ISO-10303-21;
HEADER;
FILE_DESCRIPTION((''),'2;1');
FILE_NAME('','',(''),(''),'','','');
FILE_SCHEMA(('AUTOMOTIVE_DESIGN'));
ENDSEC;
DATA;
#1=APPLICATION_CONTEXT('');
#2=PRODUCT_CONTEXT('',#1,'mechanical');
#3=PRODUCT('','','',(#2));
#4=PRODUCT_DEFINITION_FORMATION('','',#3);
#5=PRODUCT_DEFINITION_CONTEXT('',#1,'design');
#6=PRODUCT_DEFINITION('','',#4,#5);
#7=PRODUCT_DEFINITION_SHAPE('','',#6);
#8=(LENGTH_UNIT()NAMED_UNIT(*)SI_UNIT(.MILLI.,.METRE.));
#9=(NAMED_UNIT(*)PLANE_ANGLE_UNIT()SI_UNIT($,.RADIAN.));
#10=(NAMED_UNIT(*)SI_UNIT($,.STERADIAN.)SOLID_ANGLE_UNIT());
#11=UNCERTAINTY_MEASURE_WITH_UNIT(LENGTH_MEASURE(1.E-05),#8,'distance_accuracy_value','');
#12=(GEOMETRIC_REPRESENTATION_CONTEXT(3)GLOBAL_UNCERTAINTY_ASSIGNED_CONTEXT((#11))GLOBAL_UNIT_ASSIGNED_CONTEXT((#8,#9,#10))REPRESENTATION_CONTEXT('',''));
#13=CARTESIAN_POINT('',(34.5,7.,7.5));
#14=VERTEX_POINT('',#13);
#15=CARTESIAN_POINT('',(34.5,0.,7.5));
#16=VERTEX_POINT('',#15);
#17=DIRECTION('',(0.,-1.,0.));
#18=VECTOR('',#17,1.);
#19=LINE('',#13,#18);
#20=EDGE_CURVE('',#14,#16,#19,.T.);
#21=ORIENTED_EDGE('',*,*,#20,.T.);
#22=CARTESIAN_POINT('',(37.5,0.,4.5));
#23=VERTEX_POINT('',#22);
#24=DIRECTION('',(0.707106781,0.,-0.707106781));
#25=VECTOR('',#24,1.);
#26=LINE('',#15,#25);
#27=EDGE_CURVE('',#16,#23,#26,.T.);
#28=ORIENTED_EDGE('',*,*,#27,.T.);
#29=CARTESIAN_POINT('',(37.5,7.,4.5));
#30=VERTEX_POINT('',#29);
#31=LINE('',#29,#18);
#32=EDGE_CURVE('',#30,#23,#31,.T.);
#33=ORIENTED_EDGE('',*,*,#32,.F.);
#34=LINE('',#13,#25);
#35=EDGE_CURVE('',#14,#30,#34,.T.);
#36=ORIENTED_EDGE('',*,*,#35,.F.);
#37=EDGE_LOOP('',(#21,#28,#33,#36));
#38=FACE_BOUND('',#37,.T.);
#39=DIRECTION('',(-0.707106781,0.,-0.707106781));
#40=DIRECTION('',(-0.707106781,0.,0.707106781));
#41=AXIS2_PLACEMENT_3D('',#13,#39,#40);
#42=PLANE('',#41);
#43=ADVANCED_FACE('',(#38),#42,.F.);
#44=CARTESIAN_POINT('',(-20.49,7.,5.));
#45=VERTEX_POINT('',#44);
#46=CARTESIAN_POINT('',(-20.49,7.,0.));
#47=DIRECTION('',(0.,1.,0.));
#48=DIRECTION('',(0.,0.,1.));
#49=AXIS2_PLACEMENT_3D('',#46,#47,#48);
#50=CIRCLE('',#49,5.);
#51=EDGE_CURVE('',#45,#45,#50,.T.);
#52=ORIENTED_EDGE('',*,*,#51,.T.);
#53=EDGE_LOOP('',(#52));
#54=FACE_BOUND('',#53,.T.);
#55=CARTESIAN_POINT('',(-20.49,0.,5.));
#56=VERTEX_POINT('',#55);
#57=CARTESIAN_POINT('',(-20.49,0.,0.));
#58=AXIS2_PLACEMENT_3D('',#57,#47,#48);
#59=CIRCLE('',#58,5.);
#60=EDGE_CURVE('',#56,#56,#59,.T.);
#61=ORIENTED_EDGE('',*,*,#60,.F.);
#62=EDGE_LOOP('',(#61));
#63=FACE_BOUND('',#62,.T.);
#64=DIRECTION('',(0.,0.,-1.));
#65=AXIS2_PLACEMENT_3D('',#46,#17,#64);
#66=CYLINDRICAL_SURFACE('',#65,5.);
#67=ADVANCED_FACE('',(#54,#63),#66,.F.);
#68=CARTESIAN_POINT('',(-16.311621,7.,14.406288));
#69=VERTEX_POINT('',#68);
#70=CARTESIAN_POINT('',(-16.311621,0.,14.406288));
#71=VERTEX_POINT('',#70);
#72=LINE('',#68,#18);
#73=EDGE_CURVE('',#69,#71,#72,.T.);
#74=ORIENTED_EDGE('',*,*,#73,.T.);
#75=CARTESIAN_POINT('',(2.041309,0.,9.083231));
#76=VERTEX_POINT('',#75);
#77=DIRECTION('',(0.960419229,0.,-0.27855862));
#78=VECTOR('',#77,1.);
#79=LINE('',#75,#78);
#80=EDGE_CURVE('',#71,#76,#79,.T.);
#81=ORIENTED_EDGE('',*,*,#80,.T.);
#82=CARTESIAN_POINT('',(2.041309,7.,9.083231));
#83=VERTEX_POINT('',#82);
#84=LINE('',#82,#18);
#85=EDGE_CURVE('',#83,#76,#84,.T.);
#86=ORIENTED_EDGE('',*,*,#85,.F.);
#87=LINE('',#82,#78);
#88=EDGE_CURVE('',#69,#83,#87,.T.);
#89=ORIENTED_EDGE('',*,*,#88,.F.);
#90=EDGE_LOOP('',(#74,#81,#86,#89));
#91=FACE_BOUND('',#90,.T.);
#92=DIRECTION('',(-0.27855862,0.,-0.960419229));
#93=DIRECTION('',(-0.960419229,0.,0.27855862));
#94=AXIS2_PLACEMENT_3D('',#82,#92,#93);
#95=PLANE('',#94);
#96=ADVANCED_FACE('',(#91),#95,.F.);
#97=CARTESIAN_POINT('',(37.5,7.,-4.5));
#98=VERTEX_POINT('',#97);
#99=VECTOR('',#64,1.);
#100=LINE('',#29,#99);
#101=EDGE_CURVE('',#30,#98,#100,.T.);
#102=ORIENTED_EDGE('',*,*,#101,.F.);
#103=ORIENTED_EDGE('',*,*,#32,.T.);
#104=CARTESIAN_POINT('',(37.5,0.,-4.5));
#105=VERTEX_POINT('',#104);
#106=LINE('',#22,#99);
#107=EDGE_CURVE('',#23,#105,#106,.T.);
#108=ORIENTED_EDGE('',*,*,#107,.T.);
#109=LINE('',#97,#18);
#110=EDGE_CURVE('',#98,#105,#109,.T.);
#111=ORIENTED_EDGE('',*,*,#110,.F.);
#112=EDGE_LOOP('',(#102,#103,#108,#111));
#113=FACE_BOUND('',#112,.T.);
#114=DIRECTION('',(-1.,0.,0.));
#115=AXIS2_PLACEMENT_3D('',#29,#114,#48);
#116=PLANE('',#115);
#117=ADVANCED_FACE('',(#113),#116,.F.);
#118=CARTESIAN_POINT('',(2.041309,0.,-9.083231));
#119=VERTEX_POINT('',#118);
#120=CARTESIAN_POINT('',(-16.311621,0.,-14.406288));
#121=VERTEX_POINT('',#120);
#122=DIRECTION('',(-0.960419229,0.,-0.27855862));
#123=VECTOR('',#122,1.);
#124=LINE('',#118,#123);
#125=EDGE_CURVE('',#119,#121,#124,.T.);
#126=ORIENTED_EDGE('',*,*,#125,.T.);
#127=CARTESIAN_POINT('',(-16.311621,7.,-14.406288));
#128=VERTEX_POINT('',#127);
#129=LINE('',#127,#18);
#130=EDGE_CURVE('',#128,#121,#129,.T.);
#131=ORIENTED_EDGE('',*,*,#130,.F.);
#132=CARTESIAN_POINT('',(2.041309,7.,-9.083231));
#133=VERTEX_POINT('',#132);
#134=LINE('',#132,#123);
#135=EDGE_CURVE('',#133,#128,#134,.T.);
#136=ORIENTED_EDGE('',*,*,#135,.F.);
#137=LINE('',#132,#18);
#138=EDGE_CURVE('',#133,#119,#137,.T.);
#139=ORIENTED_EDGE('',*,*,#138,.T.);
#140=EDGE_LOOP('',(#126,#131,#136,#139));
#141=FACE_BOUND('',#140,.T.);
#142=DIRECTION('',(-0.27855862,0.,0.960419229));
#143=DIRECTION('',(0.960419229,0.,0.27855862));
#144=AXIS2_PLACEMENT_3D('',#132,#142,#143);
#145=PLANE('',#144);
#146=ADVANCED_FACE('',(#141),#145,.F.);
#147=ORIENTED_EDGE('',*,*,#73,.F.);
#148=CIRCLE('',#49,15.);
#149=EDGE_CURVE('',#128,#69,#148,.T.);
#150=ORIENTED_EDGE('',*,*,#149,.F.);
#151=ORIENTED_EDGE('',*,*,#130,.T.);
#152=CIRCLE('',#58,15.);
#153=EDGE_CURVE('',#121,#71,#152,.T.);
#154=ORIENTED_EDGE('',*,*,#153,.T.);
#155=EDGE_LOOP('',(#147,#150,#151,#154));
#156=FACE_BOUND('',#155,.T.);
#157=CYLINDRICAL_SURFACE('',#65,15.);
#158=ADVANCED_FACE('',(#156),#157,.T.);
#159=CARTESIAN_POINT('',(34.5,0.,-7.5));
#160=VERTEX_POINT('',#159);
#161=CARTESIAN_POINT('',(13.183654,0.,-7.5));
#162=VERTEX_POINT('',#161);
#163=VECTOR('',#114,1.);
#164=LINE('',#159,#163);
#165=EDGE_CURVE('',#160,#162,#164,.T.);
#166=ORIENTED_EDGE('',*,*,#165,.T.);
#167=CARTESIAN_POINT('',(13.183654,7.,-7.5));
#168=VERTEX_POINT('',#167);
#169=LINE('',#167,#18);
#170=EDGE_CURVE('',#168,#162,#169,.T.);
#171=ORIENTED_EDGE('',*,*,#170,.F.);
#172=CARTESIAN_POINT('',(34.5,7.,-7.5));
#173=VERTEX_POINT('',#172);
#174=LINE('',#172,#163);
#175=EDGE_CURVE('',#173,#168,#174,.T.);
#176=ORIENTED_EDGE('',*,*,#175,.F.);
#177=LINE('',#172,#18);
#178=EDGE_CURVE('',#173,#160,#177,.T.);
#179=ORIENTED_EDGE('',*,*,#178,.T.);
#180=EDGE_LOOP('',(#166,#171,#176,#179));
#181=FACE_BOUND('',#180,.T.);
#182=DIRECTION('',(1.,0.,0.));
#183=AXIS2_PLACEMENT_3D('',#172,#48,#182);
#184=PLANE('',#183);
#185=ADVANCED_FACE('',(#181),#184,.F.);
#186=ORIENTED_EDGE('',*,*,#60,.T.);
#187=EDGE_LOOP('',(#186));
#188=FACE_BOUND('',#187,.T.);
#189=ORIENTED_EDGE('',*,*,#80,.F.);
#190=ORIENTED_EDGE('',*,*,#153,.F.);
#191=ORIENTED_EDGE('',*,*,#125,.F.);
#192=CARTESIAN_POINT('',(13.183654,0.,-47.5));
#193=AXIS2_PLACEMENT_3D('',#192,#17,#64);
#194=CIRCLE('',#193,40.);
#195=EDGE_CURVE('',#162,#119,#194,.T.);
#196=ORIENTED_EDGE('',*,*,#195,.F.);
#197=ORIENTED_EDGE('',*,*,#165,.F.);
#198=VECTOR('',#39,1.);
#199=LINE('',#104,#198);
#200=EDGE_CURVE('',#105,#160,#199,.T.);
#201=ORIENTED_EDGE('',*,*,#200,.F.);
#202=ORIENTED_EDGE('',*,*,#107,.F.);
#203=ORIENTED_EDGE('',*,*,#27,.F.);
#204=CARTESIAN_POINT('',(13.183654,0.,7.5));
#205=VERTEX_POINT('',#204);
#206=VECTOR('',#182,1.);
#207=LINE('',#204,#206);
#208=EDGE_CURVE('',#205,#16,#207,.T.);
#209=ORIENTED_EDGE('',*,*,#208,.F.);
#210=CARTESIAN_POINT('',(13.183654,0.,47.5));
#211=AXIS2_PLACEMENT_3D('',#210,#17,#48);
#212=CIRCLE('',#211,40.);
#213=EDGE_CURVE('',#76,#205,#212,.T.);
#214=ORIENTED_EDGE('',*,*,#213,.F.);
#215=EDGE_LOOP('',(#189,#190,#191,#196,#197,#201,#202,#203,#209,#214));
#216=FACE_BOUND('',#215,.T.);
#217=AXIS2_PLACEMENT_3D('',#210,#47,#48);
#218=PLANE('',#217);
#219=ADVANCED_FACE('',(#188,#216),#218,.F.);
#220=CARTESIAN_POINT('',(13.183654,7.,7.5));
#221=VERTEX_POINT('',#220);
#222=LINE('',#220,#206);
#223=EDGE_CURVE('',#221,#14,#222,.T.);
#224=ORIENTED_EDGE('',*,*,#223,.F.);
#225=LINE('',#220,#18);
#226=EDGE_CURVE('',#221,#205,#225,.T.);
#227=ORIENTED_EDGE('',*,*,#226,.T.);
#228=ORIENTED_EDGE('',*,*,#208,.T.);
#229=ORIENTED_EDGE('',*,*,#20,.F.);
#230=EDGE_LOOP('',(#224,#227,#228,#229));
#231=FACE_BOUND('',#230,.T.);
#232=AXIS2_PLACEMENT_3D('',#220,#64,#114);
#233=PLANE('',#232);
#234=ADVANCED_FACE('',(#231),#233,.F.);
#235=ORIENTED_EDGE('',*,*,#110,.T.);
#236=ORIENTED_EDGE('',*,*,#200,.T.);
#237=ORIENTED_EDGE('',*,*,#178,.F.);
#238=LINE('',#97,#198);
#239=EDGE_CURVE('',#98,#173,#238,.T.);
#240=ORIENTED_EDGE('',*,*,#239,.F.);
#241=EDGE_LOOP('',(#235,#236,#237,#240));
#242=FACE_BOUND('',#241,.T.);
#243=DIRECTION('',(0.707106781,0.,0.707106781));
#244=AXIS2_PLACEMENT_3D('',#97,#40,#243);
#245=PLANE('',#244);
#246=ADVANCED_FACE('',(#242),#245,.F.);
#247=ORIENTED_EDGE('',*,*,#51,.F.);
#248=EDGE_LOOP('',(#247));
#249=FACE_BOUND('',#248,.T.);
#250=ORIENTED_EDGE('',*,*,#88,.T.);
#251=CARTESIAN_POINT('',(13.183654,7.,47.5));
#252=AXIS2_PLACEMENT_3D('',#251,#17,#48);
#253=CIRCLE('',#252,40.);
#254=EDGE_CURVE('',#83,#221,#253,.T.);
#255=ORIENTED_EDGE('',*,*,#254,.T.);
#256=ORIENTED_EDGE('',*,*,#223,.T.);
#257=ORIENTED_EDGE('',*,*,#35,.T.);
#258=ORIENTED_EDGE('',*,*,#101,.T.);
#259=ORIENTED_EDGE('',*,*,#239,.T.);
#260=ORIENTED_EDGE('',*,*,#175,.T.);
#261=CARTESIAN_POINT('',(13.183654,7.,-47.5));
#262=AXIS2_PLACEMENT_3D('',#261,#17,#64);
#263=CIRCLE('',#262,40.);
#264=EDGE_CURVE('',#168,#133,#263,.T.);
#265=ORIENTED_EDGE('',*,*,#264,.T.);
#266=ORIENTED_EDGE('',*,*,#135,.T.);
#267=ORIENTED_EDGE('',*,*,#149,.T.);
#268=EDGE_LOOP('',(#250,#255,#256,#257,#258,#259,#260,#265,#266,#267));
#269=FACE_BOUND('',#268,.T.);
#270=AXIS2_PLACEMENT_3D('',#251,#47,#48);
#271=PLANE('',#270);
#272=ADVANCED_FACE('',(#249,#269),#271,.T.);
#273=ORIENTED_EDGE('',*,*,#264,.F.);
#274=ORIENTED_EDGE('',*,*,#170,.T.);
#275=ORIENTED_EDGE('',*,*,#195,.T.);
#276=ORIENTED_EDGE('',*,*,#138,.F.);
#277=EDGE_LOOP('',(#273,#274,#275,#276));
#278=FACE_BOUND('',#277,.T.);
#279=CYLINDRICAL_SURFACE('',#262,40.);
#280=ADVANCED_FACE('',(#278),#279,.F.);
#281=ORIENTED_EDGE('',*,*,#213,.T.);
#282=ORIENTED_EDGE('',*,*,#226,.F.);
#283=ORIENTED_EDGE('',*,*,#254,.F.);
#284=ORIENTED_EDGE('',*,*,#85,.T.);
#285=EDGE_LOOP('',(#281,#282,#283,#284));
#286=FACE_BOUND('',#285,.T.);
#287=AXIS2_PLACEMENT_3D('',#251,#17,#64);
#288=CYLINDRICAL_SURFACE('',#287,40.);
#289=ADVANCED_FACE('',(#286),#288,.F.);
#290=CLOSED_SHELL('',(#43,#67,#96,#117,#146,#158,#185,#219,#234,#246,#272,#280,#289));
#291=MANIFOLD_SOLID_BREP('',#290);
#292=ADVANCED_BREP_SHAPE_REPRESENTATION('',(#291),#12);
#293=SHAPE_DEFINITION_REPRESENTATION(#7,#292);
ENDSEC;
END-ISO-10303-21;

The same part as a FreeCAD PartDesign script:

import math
import FreeCAD as App
import Part
import Sketcher
Q = App.Units.Quantity

doc = App.newDocument("Part")
body = doc.addObject("PartDesign::Body", "Body")

sketch1 = doc.addObject("Sketcher::SketchObject", "Sketch")
body.addObject(sketch1)
sketch1.AttachmentSupport = (doc.XZ_Plane, [""])
sketch1.MapMode = "FlatFace"
sketch1.addGeometry(Part.LineSegment(App.Vector(37.5, 4.5, 0), App.Vector(37.5, -4.5, 0)), False)
sketch1.addGeometry(Part.LineSegment(App.Vector(37.5, -4.5, 0), App.Vector(34.5, -7.5, 0)), False)
sketch1.addGeometry(Part.LineSegment(App.Vector(34.5, -7.5, 0), App.Vector(13.183654, -7.5, 0)), False)
sketch1.addGeometry(Part.ArcOfCircle(Part.Circle(App.Vector(13.183654, -47.5, 0), App.Vector(0, 0, 1), 40), math.radians(90), math.radians(106.174197)), False)
sketch1.addGeometry(Part.LineSegment(App.Vector(2.041309, -9.083231, 0), App.Vector(-16.311621, -14.406288, 0)), False)
sketch1.addGeometry(Part.ArcOfCircle(Part.Circle(App.Vector(-20.49, 0, 0), App.Vector(0, 0, 1), 15), math.radians(73.825803), math.radians(286.174197)), False)
sketch1.addGeometry(Part.LineSegment(App.Vector(-16.311621, 14.406288, 0), App.Vector(2.041309, 9.083231, 0)), False)
sketch1.addGeometry(Part.ArcOfCircle(Part.Circle(App.Vector(13.183654, 47.5, 0), App.Vector(0, 0, 1), 40), math.radians(-106.174197), math.radians(-90)), False)
sketch1.addGeometry(Part.LineSegment(App.Vector(13.183654, 7.5, 0), App.Vector(34.5, 7.5, 0)), False)
sketch1.addGeometry(Part.LineSegment(App.Vector(34.5, 7.5, 0), App.Vector(37.5, 4.5, 0)), False)
sketch1.addGeometry(Part.Circle(App.Vector(-20.49, 0, 0), App.Vector(0, 0, 1), 5), False)
sketch1.addConstraint(Sketcher.Constraint("Coincident", 0, 2, 1, 1))
sketch1.addConstraint(Sketcher.Constraint("Coincident", 1, 2, 2, 1))
sketch1.addConstraint(Sketcher.Constraint("Tangent", 2, 2, 3, 1))
sketch1.addConstraint(Sketcher.Constraint("Tangent", 3, 2, 4, 1))
sketch1.addConstraint(Sketcher.Constraint("Tangent", 4, 2, 5, 2))
sketch1.addConstraint(Sketcher.Constraint("Tangent", 5, 1, 6, 1))
sketch1.addConstraint(Sketcher.Constraint("Tangent", 6, 2, 7, 1))
sketch1.addConstraint(Sketcher.Constraint("Tangent", 7, 2, 8, 1))
sketch1.addConstraint(Sketcher.Constraint("Coincident", 8, 2, 9, 1))
sketch1.addConstraint(Sketcher.Constraint("Coincident", 9, 2, 0, 1))
sketch1.addConstraint(Sketcher.Constraint("Vertical", 0))
sketch1.addConstraint(Sketcher.Constraint("Horizontal", 2))
sketch1.addConstraint(Sketcher.Constraint("Horizontal", 8))
sketch1.addConstraint(Sketcher.Constraint("Coincident", 10, 3, 5, 3))
sketch1.addConstraint(Sketcher.Constraint("Equal", 3, 7))
sketch1.addConstraint(Sketcher.Constraint("Symmetric", 3, 3, 7, 3, -1))
sketch1.addConstraint(Sketcher.Constraint("PointOnObject", 5, 3, -1))
sketch1.addConstraint(Sketcher.Constraint("Perpendicular", 1, 9))
sketch1.addConstraint(Sketcher.Constraint("Vertical", 1, 2, 8, 2))
sketch1.addConstraint(Sketcher.Constraint("Equal", 1, 9))
sketch1.addConstraint(Sketcher.Constraint("Diameter", 10, Q("10 mm")))
sketch1.addConstraint(Sketcher.Constraint("Radius", 3, Q("40 mm")))
sketch1.addConstraint(Sketcher.Constraint("Radius", 5, Q("15 mm")))
sketch1.addConstraint(Sketcher.Constraint("DistanceY", 0, 2, 0, 1, Q("9 mm")))
sketch1.addConstraint(Sketcher.Constraint("DistanceY", 3, 3, 7, 3, Q("95 mm")))
sketch1.addConstraint(Sketcher.Constraint("DistanceX", -1, 1, 0, 2, Q("37.5 mm")))
sketch1.addConstraint(Sketcher.Constraint("DistanceX", 5, 3, -1, 1, Q("20.49 mm")))
sketch1.addConstraint(Sketcher.Constraint("Distance", 4, Q("19.10929 mm")))
pad1 = doc.addObject("PartDesign::Pad", "Pad")
body.addObject(pad1)
pad1.Profile = sketch1
pad1.Length = 7
pad1.Reversed = True

doc.recompute()
